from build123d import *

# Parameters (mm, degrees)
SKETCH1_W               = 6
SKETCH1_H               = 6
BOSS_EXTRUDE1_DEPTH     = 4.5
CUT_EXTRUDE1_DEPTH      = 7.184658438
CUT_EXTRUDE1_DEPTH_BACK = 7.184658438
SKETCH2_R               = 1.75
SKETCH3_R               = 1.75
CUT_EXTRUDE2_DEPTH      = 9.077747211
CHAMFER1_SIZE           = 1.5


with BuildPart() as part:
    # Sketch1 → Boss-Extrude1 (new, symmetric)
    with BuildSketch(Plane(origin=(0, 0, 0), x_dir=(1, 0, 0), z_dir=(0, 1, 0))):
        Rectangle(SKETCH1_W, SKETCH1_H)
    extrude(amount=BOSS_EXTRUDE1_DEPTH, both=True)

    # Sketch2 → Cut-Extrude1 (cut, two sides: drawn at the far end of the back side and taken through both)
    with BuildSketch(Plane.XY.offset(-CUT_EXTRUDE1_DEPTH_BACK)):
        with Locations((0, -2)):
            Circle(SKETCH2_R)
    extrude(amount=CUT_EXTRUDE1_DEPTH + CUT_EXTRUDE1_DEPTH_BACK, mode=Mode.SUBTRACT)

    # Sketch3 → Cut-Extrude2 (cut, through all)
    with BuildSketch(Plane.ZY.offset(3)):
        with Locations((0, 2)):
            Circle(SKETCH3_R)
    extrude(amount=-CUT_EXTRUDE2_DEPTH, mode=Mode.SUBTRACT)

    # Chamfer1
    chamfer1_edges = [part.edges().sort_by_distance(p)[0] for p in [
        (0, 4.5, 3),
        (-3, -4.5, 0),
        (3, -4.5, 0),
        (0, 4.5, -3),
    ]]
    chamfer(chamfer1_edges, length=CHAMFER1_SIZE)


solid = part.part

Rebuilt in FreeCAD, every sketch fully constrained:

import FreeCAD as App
import Part
import Sketcher
from FreeCAD import Vector


def edges_at(feature, points):
    """Names of the edges that pass closest to the given points."""
    edges = feature.Shape.Edges
    near = lambda p: min(range(len(edges)), key=lambda i: edges[i].distToShape(Part.Vertex(*p))[0])
    return sorted({f"Edge{near(p) + 1}" for p in points})


def add_polygon(sketch, points):
    """Adds a closed chain of lines whose ends are joined by coincident constraints."""
    first, n = sketch.GeometryCount, len(points)
    for a, b in zip(points, points[1:] + points[:1]):
        sketch.addGeometry(Part.LineSegment(App.Vector(*a, 0), App.Vector(*b, 0)), False)
    for i in range(n):
        sketch.addConstraint(Sketcher.Constraint("Coincident", first + i, 2, first + (i + 1) % n, 1))

doc = App.newDocument("Part")
body = doc.addObject("PartDesign::Body", "Body")

# Sketch on XZ plane
sketch1 = body.newObject("Sketcher::SketchObject", "Sketch")
sketch1.AttachmentSupport = (doc.getObject("XZ_Plane"), [""])
sketch1.MapMode = "FlatFace"
add_polygon(sketch1, [(-3, -3), (-3, 3), (3, 3), (3, -3)])  # lines 0-3
sketch1.addConstraint(Sketcher.Constraint("Vertical", 0))
sketch1.addConstraint(Sketcher.Constraint("Horizontal", 1))
sketch1.addConstraint(Sketcher.Constraint("Vertical", 2))
sketch1.addConstraint(Sketcher.Constraint("Horizontal", 3))
sketch1.addConstraint(Sketcher.Constraint("Symmetric", 0, 2, 2, 2, -1, 1))
sketch1.addConstraint(Sketcher.Constraint("Equal", 3, 0))
sketch1.addConstraint(Sketcher.Constraint("DistanceX", 1, 1, 1, 2, 6.0))
pad1 = body.newObject("PartDesign::Pad", "Pad")
pad1.Profile = sketch1
pad1.Length = 9
pad1.Midplane = True

# Sketch on XY plane
sketch2 = body.newObject("Sketcher::SketchObject", "Sketch001")
sketch2.AttachmentSupport = (doc.getObject("XY_Plane"), [""])
sketch2.MapMode = "FlatFace"
sketch2.addGeometry(Part.Circle(Vector(0, -2, 0), Vector(0, 0, 1), 1.8), False)
sketch2.addConstraint(Sketcher.Constraint("PointOnObject", 0, 3, -2))
sketch2.addConstraint(Sketcher.Constraint("Diameter", 0, 3.5))
sketch2.addConstraint(Sketcher.Constraint("DistanceY", 0, 3, -1, 1, 2.0))
pocket1 = body.newObject("PartDesign::Pocket", "Pocket")
pocket1.Profile = sketch2
pocket1.Type = "ThroughAll"
pocket1.Midplane = True

# Sketch on YZ plane
sketch3 = body.newObject("Sketcher::SketchObject", "Sketch002")
sketch3.AttachmentSupport = (doc.getObject("YZ_Plane"), [""])
sketch3.MapMode = "FlatFace"
sketch3.AttachmentOffset = App.Placement(Vector(0, 0, -3), App.Rotation())
sketch3.addGeometry(Part.Circle(Vector(2, 0, 0), Vector(0, 0, 1), 1.8), False)
sketch3.addConstraint(Sketcher.Constraint("PointOnObject", 0, 3, -1))
sketch3.addConstraint(Sketcher.Constraint("Diameter", 0, 3.5))
sketch3.addConstraint(Sketcher.Constraint("DistanceX", -1, 1, 0, 3, 2.0))
pocket2 = body.newObject("PartDesign::Pocket", "Pocket001")
pocket2.Profile = sketch3
pocket2.Type = "ThroughAll"
pocket2.Reversed = True
doc.recompute()

chamfer = body.newObject("PartDesign::Chamfer", "Chamfer")
chamfer.Base = (pocket2, edges_at(pocket2, [
    (0, 4.5, 3),
    (-3, -4.5, 0),
    (3, -4.5, 0),
    (0, 4.5, -3),
]))
chamfer.Size = 1.5

doc.recompute()
